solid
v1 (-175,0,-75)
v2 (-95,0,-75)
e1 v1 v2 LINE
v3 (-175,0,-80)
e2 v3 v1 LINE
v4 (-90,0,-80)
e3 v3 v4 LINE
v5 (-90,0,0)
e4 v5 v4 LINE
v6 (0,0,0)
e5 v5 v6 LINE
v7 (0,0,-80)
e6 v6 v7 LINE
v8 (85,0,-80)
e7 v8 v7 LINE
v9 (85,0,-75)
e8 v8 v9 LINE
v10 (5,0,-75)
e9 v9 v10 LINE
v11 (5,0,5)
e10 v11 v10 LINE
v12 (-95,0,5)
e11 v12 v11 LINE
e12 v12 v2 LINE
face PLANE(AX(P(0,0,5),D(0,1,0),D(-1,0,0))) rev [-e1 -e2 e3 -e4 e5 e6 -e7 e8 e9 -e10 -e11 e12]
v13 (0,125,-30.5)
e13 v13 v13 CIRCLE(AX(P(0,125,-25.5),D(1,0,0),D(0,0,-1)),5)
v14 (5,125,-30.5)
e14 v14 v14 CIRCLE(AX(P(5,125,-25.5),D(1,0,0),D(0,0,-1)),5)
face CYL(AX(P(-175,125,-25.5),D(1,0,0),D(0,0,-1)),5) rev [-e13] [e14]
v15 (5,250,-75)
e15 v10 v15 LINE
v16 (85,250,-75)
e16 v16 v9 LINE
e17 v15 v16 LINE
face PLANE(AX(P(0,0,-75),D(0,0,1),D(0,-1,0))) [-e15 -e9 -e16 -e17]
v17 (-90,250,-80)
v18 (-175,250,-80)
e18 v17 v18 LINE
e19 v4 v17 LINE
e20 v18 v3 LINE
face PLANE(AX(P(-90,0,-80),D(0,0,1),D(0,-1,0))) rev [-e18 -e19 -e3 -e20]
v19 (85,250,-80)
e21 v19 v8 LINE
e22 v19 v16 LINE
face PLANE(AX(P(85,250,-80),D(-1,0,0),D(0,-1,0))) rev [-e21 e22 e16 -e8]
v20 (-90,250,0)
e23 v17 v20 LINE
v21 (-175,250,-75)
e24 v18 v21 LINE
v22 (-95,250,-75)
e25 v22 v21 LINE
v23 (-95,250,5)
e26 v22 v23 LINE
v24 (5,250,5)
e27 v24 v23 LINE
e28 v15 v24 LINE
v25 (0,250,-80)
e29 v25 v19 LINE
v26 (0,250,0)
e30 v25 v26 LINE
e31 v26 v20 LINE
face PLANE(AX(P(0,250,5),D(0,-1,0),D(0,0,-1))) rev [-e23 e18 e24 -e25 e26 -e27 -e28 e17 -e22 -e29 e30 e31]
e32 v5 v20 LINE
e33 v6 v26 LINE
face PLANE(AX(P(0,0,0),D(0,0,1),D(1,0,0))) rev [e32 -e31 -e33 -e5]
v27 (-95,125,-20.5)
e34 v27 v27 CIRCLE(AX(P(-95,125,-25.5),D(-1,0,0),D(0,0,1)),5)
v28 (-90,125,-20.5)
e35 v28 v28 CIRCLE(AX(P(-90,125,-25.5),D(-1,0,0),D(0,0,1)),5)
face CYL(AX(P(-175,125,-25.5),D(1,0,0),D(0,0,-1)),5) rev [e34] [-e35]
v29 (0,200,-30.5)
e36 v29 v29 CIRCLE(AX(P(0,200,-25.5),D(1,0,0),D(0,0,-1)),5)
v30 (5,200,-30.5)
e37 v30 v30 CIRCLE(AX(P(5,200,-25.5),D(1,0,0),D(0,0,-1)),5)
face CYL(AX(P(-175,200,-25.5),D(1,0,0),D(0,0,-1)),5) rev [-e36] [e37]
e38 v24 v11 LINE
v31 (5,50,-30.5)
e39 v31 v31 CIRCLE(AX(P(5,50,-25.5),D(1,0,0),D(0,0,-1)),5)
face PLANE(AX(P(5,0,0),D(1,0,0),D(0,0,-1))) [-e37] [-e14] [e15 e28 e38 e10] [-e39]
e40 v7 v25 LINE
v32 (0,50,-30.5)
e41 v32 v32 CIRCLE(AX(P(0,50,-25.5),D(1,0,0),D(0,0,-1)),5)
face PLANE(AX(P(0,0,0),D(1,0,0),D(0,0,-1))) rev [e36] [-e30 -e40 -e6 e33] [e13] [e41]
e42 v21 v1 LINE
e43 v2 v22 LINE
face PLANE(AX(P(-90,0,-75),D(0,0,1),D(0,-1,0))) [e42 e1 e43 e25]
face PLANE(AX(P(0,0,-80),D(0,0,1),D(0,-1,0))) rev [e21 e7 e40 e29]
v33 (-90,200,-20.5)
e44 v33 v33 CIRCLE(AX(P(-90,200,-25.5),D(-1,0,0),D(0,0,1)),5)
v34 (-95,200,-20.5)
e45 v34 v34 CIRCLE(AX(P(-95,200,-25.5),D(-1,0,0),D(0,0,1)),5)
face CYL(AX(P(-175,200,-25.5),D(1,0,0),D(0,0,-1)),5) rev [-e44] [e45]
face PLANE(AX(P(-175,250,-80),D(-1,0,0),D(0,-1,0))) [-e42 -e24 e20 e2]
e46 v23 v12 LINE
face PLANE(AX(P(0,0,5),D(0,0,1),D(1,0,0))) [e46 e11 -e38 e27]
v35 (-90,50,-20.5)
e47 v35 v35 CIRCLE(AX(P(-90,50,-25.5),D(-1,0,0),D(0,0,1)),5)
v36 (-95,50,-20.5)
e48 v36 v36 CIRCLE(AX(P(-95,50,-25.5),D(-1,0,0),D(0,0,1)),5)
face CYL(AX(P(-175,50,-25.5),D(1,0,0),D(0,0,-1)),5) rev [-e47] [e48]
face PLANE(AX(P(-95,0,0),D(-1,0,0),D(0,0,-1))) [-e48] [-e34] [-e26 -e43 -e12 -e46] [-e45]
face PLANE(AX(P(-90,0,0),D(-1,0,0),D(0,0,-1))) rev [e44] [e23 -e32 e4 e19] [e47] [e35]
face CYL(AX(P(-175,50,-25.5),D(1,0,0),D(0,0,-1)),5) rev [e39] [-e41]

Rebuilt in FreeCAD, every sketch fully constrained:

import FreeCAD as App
import Part
import Sketcher


def add_polygon(sketch, points):
    """Adds a closed chain of lines whose ends are joined by coincident constraints."""
    first, n = sketch.GeometryCount, len(points)
    for a, b in zip(points, points[1:] + points[:1]):
        sketch.addGeometry(Part.LineSegment(App.Vector(*a, 0), App.Vector(*b, 0)), False)
    for i in range(n):
        sketch.addConstraint(Sketcher.Constraint("Coincident", first + i, 2, first + (i + 1) % n, 1))

doc = App.newDocument("Part")
body = doc.addObject("PartDesign::Body", "Body")

sketch1 = body.newObject("Sketcher::SketchObject", "Sketch")
sketch1.AttachmentSupport = (doc.getObject("XY_Plane"), [""])
sketch1.MapMode = "FlatFace"
add_polygon(sketch1, [(-45, 250), (-45, 0), (0, 0), (0, 250)])
sketch1.addConstraint([
    Sketcher.Constraint("Vertical", 0),
    Sketcher.Constraint("Horizontal", 1),
    Sketcher.Constraint("Vertical", 2),
    Sketcher.Constraint("Horizontal", 3),
    Sketcher.Constraint("Coincident", 1, 2, -1, 1),
    Sketcher.Constraint("DistanceX", 1, 1, 1, 2, 45.0),
    Sketcher.Constraint("DistanceY", 0, 2, 0, 1, 250.0),
])
pad1 = body.newObject("PartDesign::Pad", "Pad")
pad1.Profile = sketch1
pad1.Length = 5

sketch2 = body.newObject("Sketcher::SketchObject", "Sketch001")
sketch2.AttachmentSupport = (doc.getObject("YZ_Plane"), [""])
sketch2.MapMode = "FlatFace"
add_polygon(sketch2, [(250, 5), (0, 5), (0, -75), (250, -75)])
sketch2.addConstraint([
    Sketcher.Constraint("Horizontal", 0),
    Sketcher.Constraint("Vertical", 1),
    Sketcher.Constraint("Horizontal", 2),
    Sketcher.Constraint("Vertical", 3),
    Sketcher.Constraint("PointOnObject", 0, 2, -2),
    Sketcher.Constraint("DistanceX", 0, 2, 0, 1, 250.0),
    Sketcher.Constraint("DistanceY", 1, 2, 1, 1, 80.0),
    Sketcher.Constraint("DistanceY", -1, 1, 0, 2, 5.0),
])
pad2 = body.newObject("PartDesign::Pad", "Pad001")
pad2.Profile = sketch2
pad2.Length = 5

sketch3 = body.newObject("Sketcher::SketchObject", "Sketch002")
sketch3.AttachmentSupport = (doc.getObject("XY_Plane"), [""])
sketch3.MapMode = "FlatFace"
sketch3.AttachmentOffset = App.Placement(App.Vector(0, 0, -75), App.Rotation())
add_polygon(sketch3, [(85, 250), (85, 0), (0, 0), (0, 250)])
sketch3.addConstraint([
    Sketcher.Constraint("Vertical", 0),
    Sketcher.Constraint("Horizontal", 1),
    Sketcher.Constraint("Vertical", 2),
    Sketcher.Constraint("Horizontal", 3),
    Sketcher.Constraint("Coincident", 1, 2, -1, 1),
    Sketcher.Constraint("DistanceX", 1, 2, 1, 1, 85.0),
    Sketcher.Constraint("DistanceY", 0, 2, 0, 1, 250.0),
])
pad3 = body.newObject("PartDesign::Pad", "Pad002")
pad3.Profile = sketch3
pad3.Length = 5
pad3.Reversed = True
doc.recompute()

datumplane = body.newObject("PartDesign::Plane", "DatumPlane")
datumplane.AttachmentSupport = (doc.getObject("YZ_Plane"), [""])
datumplane.MapMode = "FlatFace"
datumplane.AttachmentOffset = App.Placement(App.Vector(0, 0, -45), App.Rotation())
mirrored = body.newObject("PartDesign::Mirrored", "Mirrored")
mirrored.Originals = [pad1, pad2, pad3]
mirrored.MirrorPlane = (datumplane, [""])
body.Tip = mirrored

sketch4 = body.newObject("Sketcher::SketchObject", "Sketch003")
sketch4.AttachmentSupport = (doc.getObject("YZ_Plane"), [""])
sketch4.MapMode = "FlatFace"
sketch4.AttachmentOffset = App.Placement(App.Vector(0, 0, 5), App.Rotation())
sketch4.addGeometry([
    Part.Circle(App.Vector(125, -26, 0), App.Vector(0, 0, 1), 5),
    Part.Circle(App.Vector(200, -26, 0), App.Vector(0, 0, 1), 5),
    Part.Circle(App.Vector(50, -26, 0), App.Vector(0, 0, 1), 5),
], False)
sketch4.addConstraint([
    Sketcher.Constraint("Equal", 0, 1),
    Sketcher.Constraint("Equal", 1, 2),
    Sketcher.Constraint("Horizontal", 0, 3, 1, 3),
    Sketcher.Constraint("Horizontal", 1, 3, 2, 3),
    Sketcher.Constraint("Diameter", 0, 10.0),
    Sketcher.Constraint("DistanceX", -1, 1, 0, 3, 125.0),
    Sketcher.Constraint("DistanceX", -1, 1, 1, 3, 200.0),
    Sketcher.Constraint("DistanceX", -1, 1, 2, 3, 50.0),
    Sketcher.Constraint("DistanceY", 0, 3, -1, 1, 25.5),
])
pocket1 = body.newObject("PartDesign::Pocket", "Pocket")
pocket1.Profile = sketch4
pocket1.Type = "ThroughAll"

doc.recompute()
